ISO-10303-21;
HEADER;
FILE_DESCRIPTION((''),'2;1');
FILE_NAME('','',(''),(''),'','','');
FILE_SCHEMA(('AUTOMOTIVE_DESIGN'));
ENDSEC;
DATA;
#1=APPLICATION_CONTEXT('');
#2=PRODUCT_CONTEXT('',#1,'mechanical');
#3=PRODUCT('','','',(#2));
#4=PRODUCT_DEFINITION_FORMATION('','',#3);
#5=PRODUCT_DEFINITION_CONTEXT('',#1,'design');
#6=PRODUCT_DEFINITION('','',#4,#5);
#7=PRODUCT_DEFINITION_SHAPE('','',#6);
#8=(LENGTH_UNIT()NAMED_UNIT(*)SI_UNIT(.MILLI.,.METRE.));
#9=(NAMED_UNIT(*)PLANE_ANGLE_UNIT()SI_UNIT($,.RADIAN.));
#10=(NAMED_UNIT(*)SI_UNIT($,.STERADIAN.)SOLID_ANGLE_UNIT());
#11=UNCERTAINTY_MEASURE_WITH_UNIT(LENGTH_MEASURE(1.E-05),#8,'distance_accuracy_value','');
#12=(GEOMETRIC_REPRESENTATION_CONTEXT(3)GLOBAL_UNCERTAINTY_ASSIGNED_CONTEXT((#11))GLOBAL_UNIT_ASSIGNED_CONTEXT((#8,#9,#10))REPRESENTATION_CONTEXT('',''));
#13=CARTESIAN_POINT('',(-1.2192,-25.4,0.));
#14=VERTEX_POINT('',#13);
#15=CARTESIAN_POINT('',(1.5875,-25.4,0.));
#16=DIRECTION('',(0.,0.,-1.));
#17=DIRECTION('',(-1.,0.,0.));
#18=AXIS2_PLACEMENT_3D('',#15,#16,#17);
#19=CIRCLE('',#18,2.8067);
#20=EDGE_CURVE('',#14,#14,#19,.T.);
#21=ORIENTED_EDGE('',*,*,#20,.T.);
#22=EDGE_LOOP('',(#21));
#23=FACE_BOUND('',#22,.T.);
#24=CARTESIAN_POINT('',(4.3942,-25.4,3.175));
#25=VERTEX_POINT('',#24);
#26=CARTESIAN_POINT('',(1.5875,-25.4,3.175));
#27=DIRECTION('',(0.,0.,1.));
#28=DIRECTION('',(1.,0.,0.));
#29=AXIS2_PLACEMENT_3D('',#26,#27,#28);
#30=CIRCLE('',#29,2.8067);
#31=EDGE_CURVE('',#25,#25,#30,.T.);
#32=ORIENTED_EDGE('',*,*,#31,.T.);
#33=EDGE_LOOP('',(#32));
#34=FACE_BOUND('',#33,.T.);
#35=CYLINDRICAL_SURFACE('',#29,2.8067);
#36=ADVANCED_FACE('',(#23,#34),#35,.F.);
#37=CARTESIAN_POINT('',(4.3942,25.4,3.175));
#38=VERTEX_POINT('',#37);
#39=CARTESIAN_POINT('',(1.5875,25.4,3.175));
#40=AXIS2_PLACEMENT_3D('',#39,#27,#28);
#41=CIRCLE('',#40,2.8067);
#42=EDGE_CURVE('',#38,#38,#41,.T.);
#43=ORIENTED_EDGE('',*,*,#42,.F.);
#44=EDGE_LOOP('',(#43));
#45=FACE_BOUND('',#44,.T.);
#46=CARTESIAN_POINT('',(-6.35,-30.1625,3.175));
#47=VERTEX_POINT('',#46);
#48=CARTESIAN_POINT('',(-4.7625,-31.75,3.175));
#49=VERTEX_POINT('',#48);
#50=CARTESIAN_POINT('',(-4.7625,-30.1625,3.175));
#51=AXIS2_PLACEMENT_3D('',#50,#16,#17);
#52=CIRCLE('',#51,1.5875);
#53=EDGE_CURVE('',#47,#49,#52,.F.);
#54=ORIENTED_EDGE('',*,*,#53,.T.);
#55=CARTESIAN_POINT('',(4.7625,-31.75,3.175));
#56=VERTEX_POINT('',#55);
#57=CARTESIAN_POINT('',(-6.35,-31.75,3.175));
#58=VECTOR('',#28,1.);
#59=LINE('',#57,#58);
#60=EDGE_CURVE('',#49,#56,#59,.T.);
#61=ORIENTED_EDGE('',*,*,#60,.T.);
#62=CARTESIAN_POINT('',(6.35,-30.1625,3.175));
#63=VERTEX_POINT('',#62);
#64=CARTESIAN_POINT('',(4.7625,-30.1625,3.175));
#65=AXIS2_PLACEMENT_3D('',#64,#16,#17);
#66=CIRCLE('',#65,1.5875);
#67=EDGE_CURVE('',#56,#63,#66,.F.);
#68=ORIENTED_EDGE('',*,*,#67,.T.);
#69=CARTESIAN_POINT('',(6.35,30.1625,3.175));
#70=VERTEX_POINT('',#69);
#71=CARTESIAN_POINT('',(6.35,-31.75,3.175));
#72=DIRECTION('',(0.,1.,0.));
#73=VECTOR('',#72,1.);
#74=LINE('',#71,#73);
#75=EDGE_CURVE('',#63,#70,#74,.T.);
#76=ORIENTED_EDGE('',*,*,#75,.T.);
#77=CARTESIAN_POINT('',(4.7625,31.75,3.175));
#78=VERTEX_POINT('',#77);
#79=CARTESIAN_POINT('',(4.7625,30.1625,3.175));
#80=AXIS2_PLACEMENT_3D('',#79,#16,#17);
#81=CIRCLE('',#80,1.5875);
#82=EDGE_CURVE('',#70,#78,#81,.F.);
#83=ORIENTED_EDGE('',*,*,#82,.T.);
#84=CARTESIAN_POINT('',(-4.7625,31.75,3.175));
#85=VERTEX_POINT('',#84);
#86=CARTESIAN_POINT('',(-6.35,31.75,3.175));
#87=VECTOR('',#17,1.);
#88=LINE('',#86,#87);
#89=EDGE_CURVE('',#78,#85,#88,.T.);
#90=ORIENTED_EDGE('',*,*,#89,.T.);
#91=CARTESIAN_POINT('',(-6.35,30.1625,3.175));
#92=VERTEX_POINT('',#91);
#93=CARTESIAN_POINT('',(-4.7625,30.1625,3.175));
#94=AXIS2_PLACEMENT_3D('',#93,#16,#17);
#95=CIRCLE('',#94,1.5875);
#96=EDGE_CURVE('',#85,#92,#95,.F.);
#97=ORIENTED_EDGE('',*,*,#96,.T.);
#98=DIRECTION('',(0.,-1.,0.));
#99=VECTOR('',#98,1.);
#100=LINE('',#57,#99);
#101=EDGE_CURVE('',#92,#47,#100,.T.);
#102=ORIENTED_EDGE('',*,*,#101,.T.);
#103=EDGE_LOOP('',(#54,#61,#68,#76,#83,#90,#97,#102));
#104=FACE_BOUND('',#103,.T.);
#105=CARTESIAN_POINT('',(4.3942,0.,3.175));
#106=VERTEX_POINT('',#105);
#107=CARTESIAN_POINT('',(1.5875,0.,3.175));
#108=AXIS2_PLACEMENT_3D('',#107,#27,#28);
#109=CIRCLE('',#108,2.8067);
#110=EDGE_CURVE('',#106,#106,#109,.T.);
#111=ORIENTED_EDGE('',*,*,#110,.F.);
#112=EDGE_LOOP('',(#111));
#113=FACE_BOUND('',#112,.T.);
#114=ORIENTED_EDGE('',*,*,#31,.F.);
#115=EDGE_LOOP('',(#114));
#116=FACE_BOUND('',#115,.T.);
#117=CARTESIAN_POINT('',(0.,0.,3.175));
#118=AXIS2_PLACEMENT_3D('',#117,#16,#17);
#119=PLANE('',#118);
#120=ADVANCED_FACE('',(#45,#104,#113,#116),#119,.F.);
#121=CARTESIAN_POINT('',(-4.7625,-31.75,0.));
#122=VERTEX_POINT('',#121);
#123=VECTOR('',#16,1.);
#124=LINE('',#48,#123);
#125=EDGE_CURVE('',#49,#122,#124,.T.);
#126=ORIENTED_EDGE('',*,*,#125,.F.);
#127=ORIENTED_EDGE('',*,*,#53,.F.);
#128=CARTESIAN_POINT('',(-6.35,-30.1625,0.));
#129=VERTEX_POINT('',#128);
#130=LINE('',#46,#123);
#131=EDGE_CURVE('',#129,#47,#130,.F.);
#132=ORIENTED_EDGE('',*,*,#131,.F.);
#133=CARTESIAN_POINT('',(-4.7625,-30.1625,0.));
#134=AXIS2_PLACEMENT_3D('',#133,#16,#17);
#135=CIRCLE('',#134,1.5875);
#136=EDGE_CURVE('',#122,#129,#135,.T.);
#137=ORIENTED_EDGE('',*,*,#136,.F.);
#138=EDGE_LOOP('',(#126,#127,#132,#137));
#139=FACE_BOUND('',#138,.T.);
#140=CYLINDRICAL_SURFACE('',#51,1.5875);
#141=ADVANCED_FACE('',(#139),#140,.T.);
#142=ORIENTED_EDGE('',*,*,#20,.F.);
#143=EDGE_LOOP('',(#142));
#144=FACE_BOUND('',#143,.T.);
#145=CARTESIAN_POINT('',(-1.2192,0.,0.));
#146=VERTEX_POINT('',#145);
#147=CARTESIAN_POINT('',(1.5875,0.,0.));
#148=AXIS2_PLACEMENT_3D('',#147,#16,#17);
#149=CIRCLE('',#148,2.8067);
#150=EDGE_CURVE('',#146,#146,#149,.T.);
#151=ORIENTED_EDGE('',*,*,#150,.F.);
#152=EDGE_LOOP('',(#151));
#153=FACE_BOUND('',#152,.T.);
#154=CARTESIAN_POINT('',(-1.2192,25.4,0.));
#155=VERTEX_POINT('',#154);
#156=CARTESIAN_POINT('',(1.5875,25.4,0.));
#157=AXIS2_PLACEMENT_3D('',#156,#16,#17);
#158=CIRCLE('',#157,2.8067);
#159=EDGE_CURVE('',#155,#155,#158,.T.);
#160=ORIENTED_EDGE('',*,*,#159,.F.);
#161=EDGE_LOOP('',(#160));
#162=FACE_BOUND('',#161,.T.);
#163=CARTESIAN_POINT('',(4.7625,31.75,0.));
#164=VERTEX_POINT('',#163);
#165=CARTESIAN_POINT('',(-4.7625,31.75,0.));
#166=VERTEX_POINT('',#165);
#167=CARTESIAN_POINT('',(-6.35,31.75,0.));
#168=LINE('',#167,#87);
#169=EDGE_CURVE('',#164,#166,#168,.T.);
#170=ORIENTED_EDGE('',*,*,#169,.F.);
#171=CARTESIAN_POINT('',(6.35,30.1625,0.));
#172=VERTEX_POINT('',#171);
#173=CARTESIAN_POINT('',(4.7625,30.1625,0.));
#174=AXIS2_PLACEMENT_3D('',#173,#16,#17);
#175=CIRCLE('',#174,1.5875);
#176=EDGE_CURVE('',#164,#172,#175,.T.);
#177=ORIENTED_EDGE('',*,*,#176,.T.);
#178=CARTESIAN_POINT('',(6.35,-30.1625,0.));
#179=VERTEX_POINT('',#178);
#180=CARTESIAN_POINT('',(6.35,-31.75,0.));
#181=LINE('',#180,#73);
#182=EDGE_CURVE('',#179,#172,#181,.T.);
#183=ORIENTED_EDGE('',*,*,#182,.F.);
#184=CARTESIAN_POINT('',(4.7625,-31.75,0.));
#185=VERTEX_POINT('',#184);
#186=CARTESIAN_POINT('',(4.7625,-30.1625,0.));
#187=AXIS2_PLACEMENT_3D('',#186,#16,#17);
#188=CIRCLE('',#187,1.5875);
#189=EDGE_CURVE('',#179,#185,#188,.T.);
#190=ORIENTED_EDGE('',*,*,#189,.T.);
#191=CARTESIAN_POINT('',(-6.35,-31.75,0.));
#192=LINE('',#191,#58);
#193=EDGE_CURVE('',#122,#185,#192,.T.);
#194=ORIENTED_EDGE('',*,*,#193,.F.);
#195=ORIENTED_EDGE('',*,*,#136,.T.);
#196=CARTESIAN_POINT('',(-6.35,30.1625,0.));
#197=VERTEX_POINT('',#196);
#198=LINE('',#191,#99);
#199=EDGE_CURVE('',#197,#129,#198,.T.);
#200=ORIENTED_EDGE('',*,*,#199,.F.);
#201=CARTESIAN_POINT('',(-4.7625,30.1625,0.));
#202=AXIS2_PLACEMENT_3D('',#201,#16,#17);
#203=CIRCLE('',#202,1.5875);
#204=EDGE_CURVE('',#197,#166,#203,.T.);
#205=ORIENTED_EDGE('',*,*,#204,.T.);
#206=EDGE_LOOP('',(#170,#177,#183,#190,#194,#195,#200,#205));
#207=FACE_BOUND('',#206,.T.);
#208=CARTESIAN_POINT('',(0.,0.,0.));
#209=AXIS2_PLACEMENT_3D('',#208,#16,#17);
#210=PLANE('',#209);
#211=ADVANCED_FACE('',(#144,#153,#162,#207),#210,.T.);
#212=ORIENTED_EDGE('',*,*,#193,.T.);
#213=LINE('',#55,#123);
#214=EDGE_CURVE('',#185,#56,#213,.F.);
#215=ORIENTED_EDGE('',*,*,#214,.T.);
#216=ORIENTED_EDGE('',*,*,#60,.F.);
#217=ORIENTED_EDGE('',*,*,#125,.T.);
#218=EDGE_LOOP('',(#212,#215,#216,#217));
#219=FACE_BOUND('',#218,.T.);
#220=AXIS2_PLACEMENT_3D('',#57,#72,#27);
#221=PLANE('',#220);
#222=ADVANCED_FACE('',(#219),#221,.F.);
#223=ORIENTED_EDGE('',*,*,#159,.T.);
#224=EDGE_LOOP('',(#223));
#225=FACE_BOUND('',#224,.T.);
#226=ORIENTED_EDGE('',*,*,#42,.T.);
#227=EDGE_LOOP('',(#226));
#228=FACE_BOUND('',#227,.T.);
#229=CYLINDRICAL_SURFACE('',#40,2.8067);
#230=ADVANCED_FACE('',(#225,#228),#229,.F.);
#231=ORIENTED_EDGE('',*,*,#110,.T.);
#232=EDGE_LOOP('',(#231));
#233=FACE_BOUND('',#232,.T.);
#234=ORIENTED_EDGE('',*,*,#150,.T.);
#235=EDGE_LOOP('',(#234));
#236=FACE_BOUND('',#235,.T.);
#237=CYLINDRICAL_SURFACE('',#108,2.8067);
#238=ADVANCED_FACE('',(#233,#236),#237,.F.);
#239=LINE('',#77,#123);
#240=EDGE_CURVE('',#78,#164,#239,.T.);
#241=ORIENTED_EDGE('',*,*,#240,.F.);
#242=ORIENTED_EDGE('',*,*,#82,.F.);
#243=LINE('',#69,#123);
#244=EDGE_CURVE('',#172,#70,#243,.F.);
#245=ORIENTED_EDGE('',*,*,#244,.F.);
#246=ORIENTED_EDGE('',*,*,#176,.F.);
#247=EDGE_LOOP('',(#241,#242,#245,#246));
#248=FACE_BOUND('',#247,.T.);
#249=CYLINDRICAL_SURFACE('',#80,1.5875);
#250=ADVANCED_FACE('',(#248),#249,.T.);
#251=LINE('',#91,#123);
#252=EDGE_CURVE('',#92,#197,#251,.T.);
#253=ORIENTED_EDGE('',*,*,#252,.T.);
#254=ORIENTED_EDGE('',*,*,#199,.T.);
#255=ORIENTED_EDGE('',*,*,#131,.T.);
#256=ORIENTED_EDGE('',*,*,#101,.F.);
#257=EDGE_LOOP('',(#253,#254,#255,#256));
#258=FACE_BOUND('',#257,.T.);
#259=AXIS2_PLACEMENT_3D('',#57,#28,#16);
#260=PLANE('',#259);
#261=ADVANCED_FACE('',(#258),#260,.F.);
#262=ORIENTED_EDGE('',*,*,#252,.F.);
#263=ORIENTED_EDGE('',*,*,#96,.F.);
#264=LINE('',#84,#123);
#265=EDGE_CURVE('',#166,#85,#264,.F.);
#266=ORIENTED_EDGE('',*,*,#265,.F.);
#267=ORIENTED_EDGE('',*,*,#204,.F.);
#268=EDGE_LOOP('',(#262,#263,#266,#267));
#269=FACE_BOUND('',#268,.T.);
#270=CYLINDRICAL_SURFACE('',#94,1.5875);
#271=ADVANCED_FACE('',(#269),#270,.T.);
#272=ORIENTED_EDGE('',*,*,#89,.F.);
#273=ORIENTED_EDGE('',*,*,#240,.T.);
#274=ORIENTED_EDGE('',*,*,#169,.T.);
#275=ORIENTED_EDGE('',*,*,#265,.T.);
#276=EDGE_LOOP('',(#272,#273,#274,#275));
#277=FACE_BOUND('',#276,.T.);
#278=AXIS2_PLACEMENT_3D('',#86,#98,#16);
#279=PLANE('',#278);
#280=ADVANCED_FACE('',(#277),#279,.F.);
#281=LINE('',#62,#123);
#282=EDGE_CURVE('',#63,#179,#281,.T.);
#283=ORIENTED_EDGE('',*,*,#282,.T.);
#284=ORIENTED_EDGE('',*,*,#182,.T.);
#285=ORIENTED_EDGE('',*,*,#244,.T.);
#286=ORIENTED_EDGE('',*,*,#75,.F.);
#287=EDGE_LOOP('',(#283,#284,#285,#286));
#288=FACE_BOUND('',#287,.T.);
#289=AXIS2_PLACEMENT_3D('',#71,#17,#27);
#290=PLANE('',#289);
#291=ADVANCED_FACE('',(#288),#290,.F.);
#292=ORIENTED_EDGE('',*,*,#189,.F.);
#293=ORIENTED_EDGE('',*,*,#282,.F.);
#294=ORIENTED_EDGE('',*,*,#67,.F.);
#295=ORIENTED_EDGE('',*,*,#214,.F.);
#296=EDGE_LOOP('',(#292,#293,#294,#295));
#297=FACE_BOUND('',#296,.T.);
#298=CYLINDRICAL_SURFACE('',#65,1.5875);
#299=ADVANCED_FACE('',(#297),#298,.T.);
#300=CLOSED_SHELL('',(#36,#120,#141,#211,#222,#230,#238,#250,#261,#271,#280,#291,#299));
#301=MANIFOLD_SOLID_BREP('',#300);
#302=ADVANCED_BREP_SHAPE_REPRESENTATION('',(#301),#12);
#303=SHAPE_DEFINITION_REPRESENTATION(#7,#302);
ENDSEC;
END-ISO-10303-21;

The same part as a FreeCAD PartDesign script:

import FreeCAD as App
import Part
import Sketcher
from FreeCAD import Vector
Q = App.Units.Quantity


def edges_at(feature, points):
    """Names of the edges that pass closest to the given points."""
    edges = feature.Shape.Edges
    near = lambda p: min(range(len(edges)), key=lambda i: edges[i].distToShape(Part.Vertex(*p))[0])
    return sorted({f"Edge{near(p) + 1}" for p in points})

doc = App.newDocument("Part")
body = doc.addObject("PartDesign::Body", "Body")

# Sketch on XY plane
sketch1 = body.newObject("Sketcher::SketchObject", "Sketch")
sketch1.AttachmentSupport = (doc.getObject("XY_Plane"), [""])
sketch1.MapMode = "FlatFace"
sketch1.addGeometry(Part.LineSegment(Vector(-6, 32, 0), Vector(-6, -32, 0)), False)
sketch1.addGeometry(Part.LineSegment(Vector(-6, -32, 0), Vector(6, -32, 0)), False)
sketch1.addGeometry(Part.LineSegment(Vector(6, -32, 0), Vector(6, 32, 0)), False)
sketch1.addGeometry(Part.LineSegment(Vector(6, 32, 0), Vector(-6, 32, 0)), False)
sketch1.addConstraint(Sketcher.Constraint("Coincident", 0, 2, 1, 1))
sketch1.addConstraint(Sketcher.Constraint("Coincident", 1, 2, 2, 1))
sketch1.addConstraint(Sketcher.Constraint("Coincident", 2, 2, 3, 1))
sketch1.addConstraint(Sketcher.Constraint("Coincident", 3, 2, 0, 1))
sketch1.addConstraint(Sketcher.Constraint("Vertical", 0))
sketch1.addConstraint(Sketcher.Constraint("Horizontal", 1))
sketch1.addConstraint(Sketcher.Constraint("Vertical", 2))
sketch1.addConstraint(Sketcher.Constraint("Horizontal", 3))
sketch1.addConstraint(Sketcher.Constraint("Symmetric", 0, 2, 2, 2, -1, 1))
sketch1.addConstraint(Sketcher.Constraint("DistanceX", 1, 1, 1, 2, Q("0.5 in")))
sketch1.addConstraint(Sketcher.Constraint("DistanceY", 0, 2, 0, 1, Q("2.5 in")))
pad1 = body.newObject("PartDesign::Pad", "Pad")
pad1.Profile = sketch1
pad1.Length = Q("0.125 in")

# Sketch on XY plane
sketch2 = body.newObject("Sketcher::SketchObject", "Sketch001")
sketch2.AttachmentSupport = (doc.getObject("XY_Plane"), [""])
sketch2.MapMode = "FlatFace"
sketch2.AttachmentOffset = App.Placement(Vector(0, 0, 0.125 * 25.4), App.Rotation())
sketch2.addGeometry(Part.Circle(Vector(1.6, -25.4, 0), Vector(0, 0, 1), 2.8), False)
sketch2.addGeometry(Part.Circle(Vector(1.6, 0, 0), Vector(0, 0, 1), 2.8), False)
sketch2.addGeometry(Part.Circle(Vector(1.6, 25.4, 0), Vector(0, 0, 1), 2.8), False)
sketch2.addConstraint(Sketcher.Constraint("Equal", 0, 1))
sketch2.addConstraint(Sketcher.Constraint("Equal", 1, 2))
sketch2.addConstraint(Sketcher.Constraint("Symmetric", 0, 3, 2, 3, -1))
sketch2.addConstraint(Sketcher.Constraint("PointOnObject", 1, 3, -1))
sketch2.addConstraint(Sketcher.Constraint("Vertical", 0, 3, 1, 3))
sketch2.addConstraint(Sketcher.Constraint("Diameter", 0, Q("0.221 in")))
sketch2.addConstraint(Sketcher.Constraint("DistanceY", 0, 3, -1, 1, Q("1 in")))
sketch2.addConstraint(Sketcher.Constraint("DistanceX", -1, 1, 0, 3, Q("0.0625 in")))
doc.recompute()
hole = body.newObject("PartDesign::Hole", "Hole")
hole.Profile = sketch2
hole.ThreadType = "None"
hole.Diameter = Q("0.221 in")
hole.DepthType = "Dimension"
hole.Depth = Q("1 in")
hole.DrillPoint = "Angled"
hole.DrillPointAngle = 118
doc.recompute()

fillet = body.newObject("PartDesign::Fillet", "Fillet")
fillet.Base = (hole, edges_at(hole, [
    (6.35, -31.75, 1.587),
    (-6.35, -31.75, 1.587),
    (-6.35, 31.75, 1.587),
    (6.35, 31.75, 1.587),
]))
fillet.Radius = Q("0.0625 in")

doc.recompute()
